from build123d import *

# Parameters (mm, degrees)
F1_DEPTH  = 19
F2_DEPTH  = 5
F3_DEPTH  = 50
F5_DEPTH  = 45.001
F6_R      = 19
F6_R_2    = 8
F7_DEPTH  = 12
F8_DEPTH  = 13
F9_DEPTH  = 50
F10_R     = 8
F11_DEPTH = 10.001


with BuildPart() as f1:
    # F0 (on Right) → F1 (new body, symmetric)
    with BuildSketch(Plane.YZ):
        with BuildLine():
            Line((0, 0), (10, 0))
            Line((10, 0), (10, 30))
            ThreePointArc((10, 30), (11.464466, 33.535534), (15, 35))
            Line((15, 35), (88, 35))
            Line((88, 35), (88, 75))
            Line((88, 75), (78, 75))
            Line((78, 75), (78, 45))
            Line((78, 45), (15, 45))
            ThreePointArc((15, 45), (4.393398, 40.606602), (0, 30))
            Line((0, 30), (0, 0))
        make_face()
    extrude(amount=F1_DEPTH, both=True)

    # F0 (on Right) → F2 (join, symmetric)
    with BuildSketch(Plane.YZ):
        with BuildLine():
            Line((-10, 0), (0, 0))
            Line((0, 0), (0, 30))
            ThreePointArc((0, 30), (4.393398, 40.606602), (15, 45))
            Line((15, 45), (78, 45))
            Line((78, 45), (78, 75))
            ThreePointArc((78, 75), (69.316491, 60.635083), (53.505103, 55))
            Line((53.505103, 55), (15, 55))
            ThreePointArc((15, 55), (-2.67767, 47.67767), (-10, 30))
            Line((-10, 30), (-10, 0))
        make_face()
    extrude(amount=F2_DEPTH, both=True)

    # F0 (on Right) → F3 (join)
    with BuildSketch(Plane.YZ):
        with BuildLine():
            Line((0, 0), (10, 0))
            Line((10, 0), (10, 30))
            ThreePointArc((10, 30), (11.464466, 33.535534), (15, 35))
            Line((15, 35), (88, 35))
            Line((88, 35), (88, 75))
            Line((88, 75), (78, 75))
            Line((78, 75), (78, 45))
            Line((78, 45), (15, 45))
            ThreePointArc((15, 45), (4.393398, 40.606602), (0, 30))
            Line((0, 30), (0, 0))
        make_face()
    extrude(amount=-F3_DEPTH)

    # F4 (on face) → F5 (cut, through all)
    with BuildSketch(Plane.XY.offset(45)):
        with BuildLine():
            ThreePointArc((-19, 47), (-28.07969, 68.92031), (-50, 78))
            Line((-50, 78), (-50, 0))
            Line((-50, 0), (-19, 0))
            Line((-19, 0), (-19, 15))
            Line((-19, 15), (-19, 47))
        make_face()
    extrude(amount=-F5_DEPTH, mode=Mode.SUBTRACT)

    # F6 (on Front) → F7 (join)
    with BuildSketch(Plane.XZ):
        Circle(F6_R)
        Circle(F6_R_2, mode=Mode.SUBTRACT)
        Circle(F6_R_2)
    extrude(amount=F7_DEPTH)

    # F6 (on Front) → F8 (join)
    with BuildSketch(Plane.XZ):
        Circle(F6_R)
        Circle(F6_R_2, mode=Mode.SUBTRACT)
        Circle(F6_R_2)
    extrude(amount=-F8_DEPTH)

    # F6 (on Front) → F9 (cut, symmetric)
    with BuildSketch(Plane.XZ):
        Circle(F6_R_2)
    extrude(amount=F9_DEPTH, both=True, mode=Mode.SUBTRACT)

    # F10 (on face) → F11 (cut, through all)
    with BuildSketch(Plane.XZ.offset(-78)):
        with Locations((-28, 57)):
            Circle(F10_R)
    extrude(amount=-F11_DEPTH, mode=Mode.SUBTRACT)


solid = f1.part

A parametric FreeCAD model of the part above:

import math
import FreeCAD as App
import Part
import Sketcher

doc = App.newDocument("Part")
body = doc.addObject("PartDesign::Body", "Body")

sketch1 = body.newObject("Sketcher::SketchObject", "Sketch")
sketch1.AttachmentSupport = (doc.getObject("YZ_Plane"), [""])
sketch1.MapMode = "FlatFace"
sketch1.addGeometry(Part.LineSegment(App.Vector(0, 0, 0), App.Vector(10, 0, 0)), False)
sketch1.addGeometry(Part.LineSegment(App.Vector(10, 0, 0), App.Vector(10, 30, 0)), False)
sketch1.addGeometry(Part.ArcOfCircle(Part.Circle(App.Vector(15, 30, 0), App.Vector(0, 0, 1), 5), math.radians(90), math.radians(180)), False)
sketch1.addGeometry(Part.LineSegment(App.Vector(15, 35, 0), App.Vector(88, 35, 0)), False)
sketch1.addGeometry(Part.LineSegment(App.Vector(88, 35, 0), App.Vector(88, 75, 0)), False)
sketch1.addGeometry(Part.LineSegment(App.Vector(88, 75, 0), App.Vector(78, 75, 0)), False)
sketch1.addGeometry(Part.LineSegment(App.Vector(78, 75, 0), App.Vector(78, 45, 0)), False)
sketch1.addGeometry(Part.LineSegment(App.Vector(78, 45, 0), App.Vector(15, 45, 0)), False)
sketch1.addGeometry(Part.ArcOfCircle(Part.Circle(App.Vector(15, 30, 0), App.Vector(0, 0, 1), 15), math.radians(90), math.radians(180)), False)
sketch1.addGeometry(Part.LineSegment(App.Vector(0, 30, 0), App.Vector(0, 0, 0)), False)
sketch1.addConstraint(Sketcher.Constraint("Coincident", 0, 2, 1, 1))
sketch1.addConstraint(Sketcher.Constraint("Tangent", 1, 2, 2, 2))
sketch1.addConstraint(Sketcher.Constraint("Tangent", 2, 1, 3, 1))
sketch1.addConstraint(Sketcher.Constraint("Coincident", 3, 2, 4, 1))
sketch1.addConstraint(Sketcher.Constraint("Coincident", 4, 2, 5, 1))
sketch1.addConstraint(Sketcher.Constraint("Coincident", 5, 2, 6, 1))
sketch1.addConstraint(Sketcher.Constraint("Coincident", 6, 2, 7, 1))
sketch1.addConstraint(Sketcher.Constraint("Tangent", 7, 2, 8, 1))
sketch1.addConstraint(Sketcher.Constraint("Tangent", 8, 2, 9, 1))
sketch1.addConstraint(Sketcher.Constraint("Coincident", 9, 2, 0, 1))
sketch1.addConstraint(Sketcher.Constraint("Horizontal", 0))
sketch1.addConstraint(Sketcher.Constraint("Vertical", 1))
sketch1.addConstraint(Sketcher.Constraint("Horizontal", 3))
sketch1.addConstraint(Sketcher.Constraint("Vertical", 4))
sketch1.addConstraint(Sketcher.Constraint("Horizontal", 5))
sketch1.addConstraint(Sketcher.Constraint("Vertical", 6))
sketch1.addConstraint(Sketcher.Constraint("Horizontal", 7))
sketch1.addConstraint(Sketcher.Constraint("Vertical", 9))
sketch1.addConstraint(Sketcher.Constraint("Coincident", 9, 2, -1, 1))
sketch1.addConstraint(Sketcher.Constraint("Coincident", 8, 3, 2, 3))
sketch1.addConstraint(Sketcher.Constraint("Equal", 0, 5))
sketch1.addConstraint(Sketcher.Constraint("Equal", 1, 6))
sketch1.addConstraint(Sketcher.Constraint("Radius", 2, 5.0))
sketch1.addConstraint(Sketcher.Constraint("Radius", 8, 14.999999))
sketch1.addConstraint(Sketcher.Constraint("DistanceX", 3, 1, 3, 2, 73.0))
sketch1.addConstraint(Sketcher.Constraint("DistanceY", 1, 1, 1, 2, 30.0))
pad1 = body.newObject("PartDesign::Pad", "Pad")
pad1.Profile = sketch1
pad1.Length = 38
pad1.Midplane = True

sketch2 = body.newObject("Sketcher::SketchObject", "Sketch001")
sketch2.AttachmentSupport = (doc.getObject("YZ_Plane"), [""])
sketch2.MapMode = "FlatFace"
sketch2.addGeometry(Part.LineSegment(App.Vector(-10, 0, 0), App.Vector(0, 0, 0)), False)
sketch2.addGeometry(Part.LineSegment(App.Vector(0, 0, 0), App.Vector(0, 30, 0)), False)
sketch2.addGeometry(Part.ArcOfCircle(Part.Circle(App.Vector(15, 30, 0), App.Vector(0, 0, 1), 15), math.radians(90), math.radians(180)), False)
sketch2.addGeometry(Part.LineSegment(App.Vector(15, 45, 0), App.Vector(78, 45, 0)), False)
sketch2.addGeometry(Part.LineSegment(App.Vector(78, 45, 0), App.Vector(78, 75, 0)), False)
sketch2.addGeometry(Part.ArcOfCircle(Part.Circle(App.Vector(54, 80, 0), App.Vector(0, 0, 1), 25), math.radians(-90), math.radians(-12)), False)
sketch2.addGeometry(Part.LineSegment(App.Vector(54, 55, 0), App.Vector(15, 55, 0)), False)
sketch2.addGeometry(Part.ArcOfCircle(Part.Circle(App.Vector(15, 30, 0), App.Vector(0, 0, 1), 25), math.radians(90), math.radians(180)), False)
sketch2.addGeometry(Part.LineSegment(App.Vector(-10, 30, 0), App.Vector(-10, 0, 0)), False)
sketch2.addConstraint(Sketcher.Constraint("Coincident", 0, 2, 1, 1))
sketch2.addConstraint(Sketcher.Constraint("Tangent", 1, 2, 2, 2))
sketch2.addConstraint(Sketcher.Constraint("Tangent", 2, 1, 3, 1))
sketch2.addConstraint(Sketcher.Constraint("Coincident", 3, 2, 4, 1))
sketch2.addConstraint(Sketcher.Constraint("Coincident", 4, 2, 5, 2))
sketch2.addConstraint(Sketcher.Constraint("Tangent", 5, 1, 6, 1))
sketch2.addConstraint(Sketcher.Constraint("Tangent", 6, 2, 7, 1))
sketch2.addConstraint(Sketcher.Constraint("Tangent", 7, 2, 8, 1))
sketch2.addConstraint(Sketcher.Constraint("Coincident", 8, 2, 0, 1))
sketch2.addConstraint(Sketcher.Constraint("Horizontal", 0))
sketch2.addConstraint(Sketcher.Constraint("Vertical", 1))
sketch2.addConstraint(Sketcher.Constraint("Horizontal", 3))
sketch2.addConstraint(Sketcher.Constraint("Vertical", 4))
sketch2.addConstraint(Sketcher.Constraint("Horizontal", 6))
sketch2.addConstraint(Sketcher.Constraint("Vertical", 8))
sketch2.addConstraint(Sketcher.Constraint("Coincident", 0, 2, -1, 1))
sketch2.addConstraint(Sketcher.Constraint("Coincident", 7, 3, 2, 3))
sketch2.addConstraint(Sketcher.Constraint("Equal", 5, 7))
sketch2.addConstraint(Sketcher.Constraint("Equal", 1, 4))
sketch2.addConstraint(Sketcher.Constraint("Radius", 2, 14.999999))
sketch2.addConstraint(Sketcher.Constraint("Radius", 5, 24.999999))
sketch2.addConstraint(Sketcher.Constraint("DistanceX", 3, 1, 3, 2, 63.0))
sketch2.addConstraint(Sketcher.Constraint("DistanceY", 1, 1, 1, 2, 30.0))
pad2 = body.newObject("PartDesign::Pad", "Pad001")
pad2.Profile = sketch2
pad2.Length = 10
pad2.Midplane = True

sketch3 = body.newObject("Sketcher::SketchObject", "Sketch002")
sketch3.AttachmentSupport = (doc.getObject("YZ_Plane"), [""])
sketch3.MapMode = "FlatFace"
sketch3.addGeometry(Part.LineSegment(App.Vector(0, 0, 0), App.Vector(10, 0, 0)), False)
sketch3.addGeometry(Part.LineSegment(App.Vector(10, 0, 0), App.Vector(10, 30, 0)), False)
sketch3.addGeometry(Part.ArcOfCircle(Part.Circle(App.Vector(15, 30, 0), App.Vector(0, 0, 1), 5), math.radians(90), math.radians(180)), False)
sketch3.addGeometry(Part.LineSegment(App.Vector(15, 35, 0), App.Vector(88, 35, 0)), False)
sketch3.addGeometry(Part.LineSegment(App.Vector(88, 35, 0), App.Vector(88, 75, 0)), False)
sketch3.addGeometry(Part.LineSegment(App.Vector(88, 75, 0), App.Vector(78, 75, 0)), False)
sketch3.addGeometry(Part.LineSegment(App.Vector(78, 75, 0), App.Vector(78, 45, 0)), False)
sketch3.addGeometry(Part.LineSegment(App.Vector(78, 45, 0), App.Vector(15, 45, 0)), False)
sketch3.addGeometry(Part.ArcOfCircle(Part.Circle(App.Vector(15, 30, 0), App.Vector(0, 0, 1), 15), math.radians(90), math.radians(180)), False)
sketch3.addGeometry(Part.LineSegment(App.Vector(0, 30, 0), App.Vector(0, 0, 0)), False)
sketch3.addConstraint(Sketcher.Constraint("Coincident", 0, 2, 1, 1))
sketch3.addConstraint(Sketcher.Constraint("Tangent", 1, 2, 2, 2))
sketch3.addConstraint(Sketcher.Constraint("Tangent", 2, 1, 3, 1))
sketch3.addConstraint(Sketcher.Constraint("Coincident", 3, 2, 4, 1))
sketch3.addConstraint(Sketcher.Constraint("Coincident", 4, 2, 5, 1))
sketch3.addConstraint(Sketcher.Constraint("Coincident", 5, 2, 6, 1))
sketch3.addConstraint(Sketcher.Constraint("Coincident", 6, 2, 7, 1))
sketch3.addConstraint(Sketcher.Constraint("Tangent", 7, 2, 8, 1))
sketch3.addConstraint(Sketcher.Constraint("Tangent", 8, 2, 9, 1))
sketch3.addConstraint(Sketcher.Constraint("Coincident", 9, 2, 0, 1))
sketch3.addConstraint(Sketcher.Constraint("Horizontal", 0))
sketch3.addConstraint(Sketcher.Constraint("Vertical", 1))
sketch3.addConstraint(Sketcher.Constraint("Horizontal", 3))
sketch3.addConstraint(Sketcher.Constraint("Vertical", 4))
sketch3.addConstraint(Sketcher.Constraint("Horizontal", 5))
sketch3.addConstraint(Sketcher.Constraint("Vertical", 6))
sketch3.addConstraint(Sketcher.Constraint("Horizontal", 7))
sketch3.addConstraint(Sketcher.Constraint("Vertical", 9))
sketch3.addConstraint(Sketcher.Constraint("Coincident", 9, 2, -1, 1))
sketch3.addConstraint(Sketcher.Constraint("Coincident", 8, 3, 2, 3))
sketch3.addConstraint(Sketcher.Constraint("Equal", 0, 5))
sketch3.addConstraint(Sketcher.Constraint("Equal", 1, 6))
sketch3.addConstraint(Sketcher.Constraint("Radius", 2, 5.0))
sketch3.addConstraint(Sketcher.Constraint("Radius", 8, 14.999999))
sketch3.addConstraint(Sketcher.Constraint("DistanceX", 3, 1, 3, 2, 73.0))
sketch3.addConstraint(Sketcher.Constraint("DistanceY", 1, 1, 1, 2, 30.0))
pad3 = body.newObject("PartDesign::Pad", "Pad002")
pad3.Profile = sketch3
pad3.Length = 50
pad3.Reversed = True

sketch4 = body.newObject("Sketcher::SketchObject", "Sketch003")
sketch4.AttachmentSupport = (doc.getObject("XY_Plane"), [""])
sketch4.MapMode = "FlatFace"
sketch4.AttachmentOffset = App.Placement(App.Vector(0, 0, 45), App.Rotation())
sketch4.addGeometry(Part.ArcOfCircle(Part.Circle(App.Vector(-50, 47, 0), App.Vector(0, 0, 1), 31), math.radians(0), math.radians(90)), False)
sketch4.addGeometry(Part.LineSegment(App.Vector(-50, 78, 0), App.Vector(-50, 0, 0)), False)
sketch4.addGeometry(Part.LineSegment(App.Vector(-50, 0, 0), App.Vector(-19, 0, 0)), False)
sketch4.addGeometry(Part.LineSegment(App.Vector(-19, 0, 0), App.Vector(-19, 47, 0)), False)
sketch4.addConstraint(Sketcher.Constraint("Coincident", 0, 2, 1, 1))
sketch4.addConstraint(Sketcher.Constraint("Coincident", 1, 2, 2, 1))
sketch4.addConstraint(Sketcher.Constraint("Coincident", 2, 2, 3, 1))
sketch4.addConstraint(Sketcher.Constraint("Tangent", 3, 2, 0, 1))
sketch4.addConstraint(Sketcher.Constraint("Vertical", 1))
sketch4.addConstraint(Sketcher.Constraint("Horizontal", 2))
sketch4.addConstraint(Sketcher.Constraint("Vertical", 3))
sketch4.addConstraint(Sketcher.Constraint("PointOnObject", 1, 2, -1))
sketch4.addConstraint(Sketcher.Constraint("Radius", 0, 31.000001))
sketch4.addConstraint(Sketcher.Constraint("DistanceX", 2, 1, 2, 2, 31.0))
sketch4.addConstraint(Sketcher.Constraint("DistanceY", 1, 2, 1, 1, 78.0))
sketch4.addConstraint(Sketcher.Constraint("DistanceX", 0, 3, -1, 1, 50.000001))
pocket1 = body.newObject("PartDesign::Pocket", "Pocket")
pocket1.Profile = sketch4
pocket1.Type = "ThroughAll"

sketch5 = body.newObject("Sketcher::SketchObject", "Sketch004")
sketch5.AttachmentSupport = (doc.getObject("XZ_Plane"), [""])
sketch5.MapMode = "FlatFace"
sketch5.addGeometry(Part.Circle(App.Vector(0, 0, 0), App.Vector(0, 0, 1), 19), False)
sketch5.addConstraint(Sketcher.Constraint("Coincident", 0, 3, -1, 1))
sketch5.addConstraint(Sketcher.Constraint("Diameter", 0, 38.0))
pad4 = body.newObject("PartDesign::Pad", "Pad003")
pad4.Profile = sketch5
pad4.Length = 12

sketch6 = body.newObject("Sketcher::SketchObject", "Sketch005")
sketch6.AttachmentSupport = (doc.getObject("XZ_Plane"), [""])
sketch6.MapMode = "FlatFace"
sketch6.addGeometry(Part.Circle(App.Vector(0, 0, 0), App.Vector(0, 0, 1), 19), False)
sketch6.addConstraint(Sketcher.Constraint("Coincident", 0, 3, -1, 1))
sketch6.addConstraint(Sketcher.Constraint("Diameter", 0, 38.0))
pad5 = body.newObject("PartDesign::Pad", "Pad004")
pad5.Profile = sketch6
pad5.Length = 13
pad5.Reversed = True

sketch7 = body.newObject("Sketcher::SketchObject", "Sketch006")
sketch7.AttachmentSupport = (doc.getObject("XZ_Plane"), [""])
sketch7.MapMode = "FlatFace"
sketch7.addGeometry(Part.Circle(App.Vector(0, 0, 0), App.Vector(0, 0, 1), 8), False)
sketch7.addConstraint(Sketcher.Constraint("Coincident", 0, 3, -1, 1))
sketch7.addConstraint(Sketcher.Constraint("Diameter", 0, 16.0))
pocket2 = body.newObject("PartDesign::Pocket", "Pocket001")
pocket2.Profile = sketch7
pocket2.Length = 100
pocket2.Midplane = True

sketch8 = body.newObject("Sketcher::SketchObject", "Sketch007")
sketch8.AttachmentSupport = (doc.getObject("XZ_Plane"), [""])
sketch8.MapMode = "FlatFace"
sketch8.AttachmentOffset = App.Placement(App.Vector(0, 0, -78), App.Rotation())
sketch8.addGeometry(Part.Circle(App.Vector(-28, 57, 0), App.Vector(0, 0, 1), 8), False)
sketch8.addConstraint(Sketcher.Constraint("Diameter", 0, 16.0))
sketch8.addConstraint(Sketcher.Constraint("DistanceX", 0, 3, -1, 1, 28.0))
sketch8.addConstraint(Sketcher.Constraint("DistanceY", -1, 1, 0, 3, 57.0))
pocket3 = body.newObject("PartDesign::Pocket", "Pocket002")
pocket3.Profile = sketch8
pocket3.Type = "ThroughAll"

doc.recompute()
